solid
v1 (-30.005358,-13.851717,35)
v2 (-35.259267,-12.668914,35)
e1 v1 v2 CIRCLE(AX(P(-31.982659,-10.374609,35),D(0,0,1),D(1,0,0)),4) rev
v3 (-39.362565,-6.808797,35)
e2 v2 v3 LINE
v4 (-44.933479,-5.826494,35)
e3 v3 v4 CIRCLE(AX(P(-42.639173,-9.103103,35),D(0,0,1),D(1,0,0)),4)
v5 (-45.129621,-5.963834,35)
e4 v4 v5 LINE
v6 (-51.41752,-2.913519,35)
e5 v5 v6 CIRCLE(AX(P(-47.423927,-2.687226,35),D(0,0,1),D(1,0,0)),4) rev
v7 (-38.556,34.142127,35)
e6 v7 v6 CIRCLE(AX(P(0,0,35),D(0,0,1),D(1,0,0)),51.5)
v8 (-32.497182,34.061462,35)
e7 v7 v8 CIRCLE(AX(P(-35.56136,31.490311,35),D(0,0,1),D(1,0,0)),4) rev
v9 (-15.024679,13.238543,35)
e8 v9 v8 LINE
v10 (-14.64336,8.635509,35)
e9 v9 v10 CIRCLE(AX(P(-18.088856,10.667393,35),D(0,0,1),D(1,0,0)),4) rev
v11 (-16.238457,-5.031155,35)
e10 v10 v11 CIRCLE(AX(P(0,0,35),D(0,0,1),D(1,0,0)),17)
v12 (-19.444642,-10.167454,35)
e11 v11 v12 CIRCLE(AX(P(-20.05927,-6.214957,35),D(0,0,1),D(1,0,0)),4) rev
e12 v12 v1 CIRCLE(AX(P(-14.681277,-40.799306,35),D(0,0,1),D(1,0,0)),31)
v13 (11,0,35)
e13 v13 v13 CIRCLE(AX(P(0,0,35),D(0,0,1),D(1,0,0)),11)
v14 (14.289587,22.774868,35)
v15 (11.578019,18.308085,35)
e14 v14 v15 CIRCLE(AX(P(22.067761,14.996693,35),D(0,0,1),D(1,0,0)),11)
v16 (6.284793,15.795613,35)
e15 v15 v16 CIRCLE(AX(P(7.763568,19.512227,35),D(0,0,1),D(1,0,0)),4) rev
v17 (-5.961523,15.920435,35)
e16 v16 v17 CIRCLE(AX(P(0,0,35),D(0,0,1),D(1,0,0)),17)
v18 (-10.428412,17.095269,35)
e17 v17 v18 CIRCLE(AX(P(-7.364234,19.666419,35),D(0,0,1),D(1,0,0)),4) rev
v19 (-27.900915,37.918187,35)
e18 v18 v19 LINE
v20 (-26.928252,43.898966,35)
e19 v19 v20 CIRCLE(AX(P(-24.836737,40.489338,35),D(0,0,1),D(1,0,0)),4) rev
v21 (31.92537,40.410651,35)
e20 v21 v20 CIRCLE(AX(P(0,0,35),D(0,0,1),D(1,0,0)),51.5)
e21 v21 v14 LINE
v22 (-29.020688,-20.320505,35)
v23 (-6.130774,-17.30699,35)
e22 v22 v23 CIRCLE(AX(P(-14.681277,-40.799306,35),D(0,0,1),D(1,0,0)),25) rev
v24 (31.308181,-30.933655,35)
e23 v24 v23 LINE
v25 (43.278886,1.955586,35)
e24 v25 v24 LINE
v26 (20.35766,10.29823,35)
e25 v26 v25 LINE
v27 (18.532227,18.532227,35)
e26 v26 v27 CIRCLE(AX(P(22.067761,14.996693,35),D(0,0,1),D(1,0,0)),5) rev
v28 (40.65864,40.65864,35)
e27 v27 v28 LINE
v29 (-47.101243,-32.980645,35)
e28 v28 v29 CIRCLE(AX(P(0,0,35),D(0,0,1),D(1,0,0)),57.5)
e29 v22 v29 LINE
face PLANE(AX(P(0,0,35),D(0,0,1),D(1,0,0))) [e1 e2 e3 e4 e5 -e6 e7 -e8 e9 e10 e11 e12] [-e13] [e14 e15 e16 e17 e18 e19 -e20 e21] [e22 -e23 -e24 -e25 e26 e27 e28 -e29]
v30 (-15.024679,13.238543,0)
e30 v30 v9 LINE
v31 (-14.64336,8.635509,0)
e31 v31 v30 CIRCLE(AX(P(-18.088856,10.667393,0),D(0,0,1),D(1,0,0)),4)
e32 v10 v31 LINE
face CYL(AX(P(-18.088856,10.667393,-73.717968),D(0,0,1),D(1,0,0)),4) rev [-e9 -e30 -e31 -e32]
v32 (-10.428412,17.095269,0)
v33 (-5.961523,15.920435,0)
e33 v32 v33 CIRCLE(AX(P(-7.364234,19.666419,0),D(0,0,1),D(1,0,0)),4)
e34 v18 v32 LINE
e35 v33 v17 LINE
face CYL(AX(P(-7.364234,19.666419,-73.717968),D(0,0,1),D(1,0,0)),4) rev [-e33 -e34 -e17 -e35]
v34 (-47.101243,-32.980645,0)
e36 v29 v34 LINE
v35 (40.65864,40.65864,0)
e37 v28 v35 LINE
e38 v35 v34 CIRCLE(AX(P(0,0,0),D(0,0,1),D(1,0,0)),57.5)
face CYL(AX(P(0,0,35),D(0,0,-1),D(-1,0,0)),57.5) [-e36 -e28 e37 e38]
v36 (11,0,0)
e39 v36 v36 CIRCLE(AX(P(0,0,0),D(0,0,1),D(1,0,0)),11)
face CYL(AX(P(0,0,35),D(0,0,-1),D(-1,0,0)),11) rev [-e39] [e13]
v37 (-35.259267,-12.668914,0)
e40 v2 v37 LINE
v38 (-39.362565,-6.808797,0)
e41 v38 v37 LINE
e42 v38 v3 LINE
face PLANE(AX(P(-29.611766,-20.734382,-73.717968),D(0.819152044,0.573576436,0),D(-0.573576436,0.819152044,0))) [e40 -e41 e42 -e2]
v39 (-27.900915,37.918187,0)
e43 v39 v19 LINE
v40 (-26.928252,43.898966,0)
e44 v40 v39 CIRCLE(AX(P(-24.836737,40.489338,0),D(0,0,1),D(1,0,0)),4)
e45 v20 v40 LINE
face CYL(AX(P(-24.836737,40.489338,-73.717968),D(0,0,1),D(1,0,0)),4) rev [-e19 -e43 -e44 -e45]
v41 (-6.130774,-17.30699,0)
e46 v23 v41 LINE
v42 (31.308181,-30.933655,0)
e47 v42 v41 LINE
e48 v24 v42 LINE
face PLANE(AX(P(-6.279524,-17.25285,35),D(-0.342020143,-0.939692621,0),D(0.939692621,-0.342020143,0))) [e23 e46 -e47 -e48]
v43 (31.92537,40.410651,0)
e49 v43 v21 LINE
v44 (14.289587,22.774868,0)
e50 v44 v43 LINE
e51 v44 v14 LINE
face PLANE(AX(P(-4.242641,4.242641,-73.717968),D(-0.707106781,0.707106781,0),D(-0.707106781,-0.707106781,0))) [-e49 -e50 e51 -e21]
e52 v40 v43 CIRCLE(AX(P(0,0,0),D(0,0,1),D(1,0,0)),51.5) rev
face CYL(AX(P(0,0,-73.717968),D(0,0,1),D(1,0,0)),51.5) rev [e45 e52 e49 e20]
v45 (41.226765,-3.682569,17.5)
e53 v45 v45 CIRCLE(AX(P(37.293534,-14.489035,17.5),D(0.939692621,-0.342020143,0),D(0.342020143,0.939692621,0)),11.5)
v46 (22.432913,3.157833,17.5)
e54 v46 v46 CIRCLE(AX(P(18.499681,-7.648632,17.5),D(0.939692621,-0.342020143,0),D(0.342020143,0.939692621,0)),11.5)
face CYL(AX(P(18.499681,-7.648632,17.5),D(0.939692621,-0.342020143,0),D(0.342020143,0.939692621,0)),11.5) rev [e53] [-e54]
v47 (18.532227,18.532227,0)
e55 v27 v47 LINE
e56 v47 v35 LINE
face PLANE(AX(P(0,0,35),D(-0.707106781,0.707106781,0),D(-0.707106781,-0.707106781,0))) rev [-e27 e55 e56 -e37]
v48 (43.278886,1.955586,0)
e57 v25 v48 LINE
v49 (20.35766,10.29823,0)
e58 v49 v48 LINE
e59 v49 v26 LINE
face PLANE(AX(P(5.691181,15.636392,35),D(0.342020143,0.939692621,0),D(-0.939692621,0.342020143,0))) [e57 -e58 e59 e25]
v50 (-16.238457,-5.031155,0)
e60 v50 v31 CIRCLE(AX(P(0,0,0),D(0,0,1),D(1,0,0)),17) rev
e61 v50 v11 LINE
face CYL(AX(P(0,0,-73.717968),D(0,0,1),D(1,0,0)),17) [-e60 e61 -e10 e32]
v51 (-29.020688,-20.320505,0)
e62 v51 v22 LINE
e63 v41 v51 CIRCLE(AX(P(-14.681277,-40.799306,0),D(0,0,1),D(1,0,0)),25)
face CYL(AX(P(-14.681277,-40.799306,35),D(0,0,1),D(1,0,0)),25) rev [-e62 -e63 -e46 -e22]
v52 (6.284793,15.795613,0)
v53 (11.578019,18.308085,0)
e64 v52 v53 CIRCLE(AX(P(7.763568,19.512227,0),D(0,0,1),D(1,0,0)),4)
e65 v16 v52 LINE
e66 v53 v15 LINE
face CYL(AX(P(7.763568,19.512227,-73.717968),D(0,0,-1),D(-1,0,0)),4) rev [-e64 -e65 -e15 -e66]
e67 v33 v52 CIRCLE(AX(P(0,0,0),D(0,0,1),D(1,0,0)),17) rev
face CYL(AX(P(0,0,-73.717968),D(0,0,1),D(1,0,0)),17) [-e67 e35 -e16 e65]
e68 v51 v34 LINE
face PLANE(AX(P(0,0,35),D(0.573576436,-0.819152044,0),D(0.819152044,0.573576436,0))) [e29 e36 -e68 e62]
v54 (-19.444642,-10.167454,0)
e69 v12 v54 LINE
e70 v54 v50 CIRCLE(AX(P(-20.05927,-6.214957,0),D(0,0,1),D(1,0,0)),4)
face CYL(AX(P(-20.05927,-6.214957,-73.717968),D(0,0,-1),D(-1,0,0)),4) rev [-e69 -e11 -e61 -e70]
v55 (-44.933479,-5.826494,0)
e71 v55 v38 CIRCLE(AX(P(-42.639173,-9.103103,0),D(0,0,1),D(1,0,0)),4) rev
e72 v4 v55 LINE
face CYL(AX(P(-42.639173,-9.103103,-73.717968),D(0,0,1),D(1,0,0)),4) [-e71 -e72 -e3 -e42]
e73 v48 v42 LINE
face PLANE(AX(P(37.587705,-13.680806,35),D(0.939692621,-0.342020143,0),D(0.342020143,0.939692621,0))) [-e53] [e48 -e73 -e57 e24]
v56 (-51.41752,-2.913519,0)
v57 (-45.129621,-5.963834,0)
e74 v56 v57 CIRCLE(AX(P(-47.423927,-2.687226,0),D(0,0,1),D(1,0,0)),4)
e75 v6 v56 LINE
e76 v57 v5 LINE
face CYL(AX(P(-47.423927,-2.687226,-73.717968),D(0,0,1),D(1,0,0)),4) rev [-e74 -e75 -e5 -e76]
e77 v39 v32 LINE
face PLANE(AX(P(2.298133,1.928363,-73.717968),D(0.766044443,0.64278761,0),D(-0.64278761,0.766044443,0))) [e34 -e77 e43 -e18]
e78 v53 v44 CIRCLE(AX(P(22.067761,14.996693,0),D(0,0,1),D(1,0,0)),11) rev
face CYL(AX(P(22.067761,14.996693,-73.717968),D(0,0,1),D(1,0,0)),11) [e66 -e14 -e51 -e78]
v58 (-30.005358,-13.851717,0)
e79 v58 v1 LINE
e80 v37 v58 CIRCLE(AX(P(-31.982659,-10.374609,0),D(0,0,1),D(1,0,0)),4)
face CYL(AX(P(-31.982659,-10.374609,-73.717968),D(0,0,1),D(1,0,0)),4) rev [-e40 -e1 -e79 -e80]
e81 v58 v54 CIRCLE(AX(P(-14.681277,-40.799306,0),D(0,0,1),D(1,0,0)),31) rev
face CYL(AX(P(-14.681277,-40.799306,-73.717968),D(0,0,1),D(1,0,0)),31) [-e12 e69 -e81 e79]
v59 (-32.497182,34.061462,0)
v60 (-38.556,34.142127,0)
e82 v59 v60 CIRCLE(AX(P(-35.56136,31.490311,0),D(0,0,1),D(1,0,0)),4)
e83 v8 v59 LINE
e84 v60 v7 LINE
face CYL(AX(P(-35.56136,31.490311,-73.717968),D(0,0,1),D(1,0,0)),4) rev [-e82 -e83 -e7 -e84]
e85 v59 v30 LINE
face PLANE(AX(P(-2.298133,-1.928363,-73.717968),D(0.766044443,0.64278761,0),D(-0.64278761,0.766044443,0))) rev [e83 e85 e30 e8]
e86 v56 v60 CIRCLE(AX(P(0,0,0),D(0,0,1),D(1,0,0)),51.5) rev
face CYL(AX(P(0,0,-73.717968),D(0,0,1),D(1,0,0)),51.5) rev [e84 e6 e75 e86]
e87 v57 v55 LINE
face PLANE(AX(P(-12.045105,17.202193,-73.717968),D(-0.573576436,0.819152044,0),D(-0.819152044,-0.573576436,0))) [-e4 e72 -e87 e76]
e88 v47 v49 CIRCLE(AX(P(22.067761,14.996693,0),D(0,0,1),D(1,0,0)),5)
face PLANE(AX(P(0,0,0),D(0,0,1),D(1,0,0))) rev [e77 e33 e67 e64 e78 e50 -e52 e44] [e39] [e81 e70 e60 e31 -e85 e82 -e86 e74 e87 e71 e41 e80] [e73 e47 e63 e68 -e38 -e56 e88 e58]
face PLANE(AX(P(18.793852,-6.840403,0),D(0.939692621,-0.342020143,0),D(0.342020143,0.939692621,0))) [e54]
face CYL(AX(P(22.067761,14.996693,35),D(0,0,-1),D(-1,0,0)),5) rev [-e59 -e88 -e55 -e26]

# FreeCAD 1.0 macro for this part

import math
import FreeCAD as App
import Part
import Sketcher
Q = App.Units.Quantity


def edges_at(feature, points):
    """Names of the edges that pass closest to the given points."""
    edges = feature.Shape.Edges
    near = lambda p: min(range(len(edges)), key=lambda i: edges[i].distToShape(Part.Vertex(*p))[0])
    return sorted({f"Edge{near(p) + 1}" for p in points})

doc = App.newDocument("Part")
params = doc.addObject("Spreadsheet::Sheet", "Params")
for row, (alias, value) in enumerate([
    ("sketch1_diameter", "22 mm"),
    ("sketch1_radius", "57.5 mm"),
    ("sketch1_length", "40 mm"),
    ("sketch1_length2", "35 mm"),
    ("pad1_length", "35 mm"),
    ("fillet_radius", "25 mm"),
    ("fillet2_radius", "5 mm"),
    ("sketch2_radius", "31 mm"),
    ("sketch2_radius2", "17 mm"),
    ("sketch2_radius3", "11 mm"),
    ("sketch2_radius4", "51.5 mm"),
    ("sketch2_length", "15 mm"),
    ("pocket1_length", "35 mm"),
    ("fillet3_radius", "4 mm"),
    ("sketch3_radius", "11.5 mm"),
    ("pocket2_length", "20 mm"),
], start=1):
    params.set(f"A{row}", alias)
    params.set(f"B{row}", "=" + value)
    params.setAlias(f"B{row}", alias)

body = doc.addObject("PartDesign::Body", "Body")

# Sketch on XY plane
sketch1 = body.newObject("Sketcher::SketchObject", "Sketch")
sketch1.AttachmentSupport = (doc.getObject("XY_Plane"), [""])
sketch1.MapMode = "FlatFace"
sketch1.addGeometry(Part.LineSegment(App.Vector(-47, -33, 0), App.Vector(-15, -11, 0)), False)
sketch1.addGeometry(Part.ArcOfCircle(Part.Circle(App.Vector(0, 0, 0), App.Vector(0, 0, 1), 18), math.radians(-145), math.radians(-110)), False)
sketch1.addGeometry(Part.LineSegment(App.Vector(-6, -17, 0), App.Vector(31, -31, 0)), False)
sketch1.addGeometry(Part.LineSegment(App.Vector(31, -31, 0), App.Vector(43, 2, 0)), False)
sketch1.addGeometry(Part.LineSegment(App.Vector(43, 2, 0), App.Vector(13, 13, 0)), False)
sketch1.addGeometry(Part.LineSegment(App.Vector(13, 13, 0), App.Vector(41, 41, 0)), False)
sketch1.addGeometry(Part.ArcOfCircle(Part.Circle(App.Vector(0, 0, 0), App.Vector(0, 0, 1), 58), math.radians(45), math.radians(215)), False)
sketch1.addGeometry(Part.Circle(App.Vector(0, 0, 0), App.Vector(0, 0, 1), 11), False)
sketch1.addConstraint(Sketcher.Constraint("Coincident", 0, 2, 1, 1))
sketch1.addConstraint(Sketcher.Constraint("Tangent", 1, 2, 2, 1))
sketch1.addConstraint(Sketcher.Constraint("Coincident", 2, 2, 3, 1))
sketch1.addConstraint(Sketcher.Constraint("Coincident", 3, 2, 4, 1))
sketch1.addConstraint(Sketcher.Constraint("Coincident", 4, 2, 5, 1))
sketch1.addConstraint(Sketcher.Constraint("Coincident", 5, 2, 6, 1))
sketch1.addConstraint(Sketcher.Constraint("Coincident", 6, 2, 0, 1))
sketch1.addConstraint(Sketcher.Constraint("Coincident", 1, 3, -1, 1))
sketch1.addConstraint(Sketcher.Constraint("Coincident", 6, 3, -1, 1))
sketch1.addConstraint(Sketcher.Constraint("Coincident", 7, 3, -1, 1))
sketch1.addConstraint(Sketcher.Constraint("Perpendicular", 2, 3))
sketch1.addConstraint(Sketcher.Constraint("Perpendicular", 3, 4))
sketch1.addConstraint(Sketcher.Constraint("Equal", 0, 5))
sketch1.addConstraint(Sketcher.Constraint("Diameter", 7, Q("22 mm")))
sketch1.addConstraint(Sketcher.Constraint("Radius", 6, Q("57.5 mm")))
sketch1.addConstraint(Sketcher.Constraint("Angle", 0, Q("35 deg")))
sketch1.addConstraint(Sketcher.Constraint("Angle", 2, Q("-20 deg")))
sketch1.addConstraint(Sketcher.Constraint("Angle", 5, Q("45 deg")))
sketch1.addConstraint(Sketcher.Constraint("Distance", 2, Q("40 mm")))
sketch1.addConstraint(Sketcher.Constraint("Distance", 3, Q("35 mm")))
sketch1.addConstraint(Sketcher.Constraint("Radius", 1, Q("18.360099 mm")))
sketch1.addConstraint(Sketcher.Constraint("DistanceY", 0, 2, -1, 1, Q("10.53092 mm")))
sketch1.setExpression("Constraints[13]", "Params.sketch1_diameter")
sketch1.setExpression("Constraints[14]", "Params.sketch1_radius")
sketch1.setExpression("Constraints[18]", "Params.sketch1_length")
sketch1.setExpression("Constraints[19]", "Params.sketch1_length2")
pad1 = body.newObject("PartDesign::Pad", "Pad")
pad1.Profile = sketch1
pad1.setExpression("Length", "Params.pad1_length")
doc.recompute()

fillet = body.newObject("PartDesign::Fillet", "Fillet")
fillet.Base = (pad1, edges_at(pad1, [(-15.04, -10.531, 17.5)]))
fillet.setExpression("Radius", "Params.fillet_radius")
doc.recompute()

fillet2 = body.newObject("PartDesign::Fillet", "Fillet001")
fillet2.Base = (fillet, edges_at(fillet, [(12.983, 12.983, 17.5)]))
fillet2.setExpression("Radius", "Params.fillet2_radius")

# Sketch on XY plane
sketch2 = body.newObject("Sketcher::SketchObject", "Sketch001")
sketch2.AttachmentSupport = (doc.getObject("XY_Plane"), [""])
sketch2.MapMode = "FlatFace"
sketch2.AttachmentOffset = App.Placement(App.Vector(0, 0, 35), App.Rotation())
sketch2.addGeometry(Part.LineSegment(App.Vector(-41.7, -3.5, 0), App.Vector(-33.1, -15.8, 0)), False)
sketch2.addGeometry(Part.LineSegment(App.Vector(-33.1, -15.8, 0), App.Vector(-32.5, -15.4, 0)), False)
sketch2.addGeometry(Part.ArcOfCircle(Part.Circle(App.Vector(-14.7, -40.8, 0), App.Vector(0, 0, 1), 31), math.radians(89), math.radians(125)), False)
sketch2.addGeometry(Part.ArcOfCircle(Part.Circle(App.Vector(0, 0, 0), App.Vector(0, 0, 1), 17), math.radians(140), math.radians(215)), False)
sketch2.addGeometry(Part.LineSegment(App.Vector(-13.1, 10.9, 0), App.Vector(-35.3, 37.5, 0)), False)
sketch2.addGeometry(Part.ArcOfCircle(Part.Circle(App.Vector(0, 0, 0), App.Vector(0, 0, 1), 51.5), math.radians(133), math.radians(191)), False)
sketch2.addGeometry(Part.LineSegment(App.Vector(-50.6, -9.8, 0), App.Vector(-41.7, -3.5, 0)), False)
sketch2.addGeometry(Part.ArcOfCircle(Part.Circle(App.Vector(0, 0, 0), App.Vector(0, 0, 1), 51.5), math.radians(52), math.radians(127)), False)
sketch2.addGeometry(Part.LineSegment(App.Vector(-30.7, 41.3, 0), App.Vector(-8.5, 14.7, 0)), False)
sketch2.addGeometry(Part.ArcOfCircle(Part.Circle(App.Vector(0, 0, 0), App.Vector(0, 0, 1), 17), math.radians(48), math.radians(120)), False)
sketch2.addGeometry(Part.ArcOfCircle(Part.Circle(App.Vector(22.1, 15, 0), App.Vector(0, 0, 1), 11), math.radians(135), math.radians(192)), False)
sketch2.addGeometry(Part.LineSegment(App.Vector(14.3, 22.8, 0), App.Vector(31.9, 40.4, 0)), False)
sketch2.addConstraint(Sketcher.Constraint("Coincident", 0, 2, 1, 1))
sketch2.addConstraint(Sketcher.Constraint("Tangent", 1, 2, 2, 2))
sketch2.addConstraint(Sketcher.Constraint("Coincident", 2, 1, 3, 2))
sketch2.addConstraint(Sketcher.Constraint("Coincident", 3, 1, 4, 1))
sketch2.addConstraint(Sketcher.Constraint("Coincident", 4, 2, 5, 1))
sketch2.addConstraint(Sketcher.Constraint("Coincident", 5, 2, 6, 1))
sketch2.addConstraint(Sketcher.Constraint("Coincident", 6, 2, 0, 1))
sketch2.addConstraint(Sketcher.Constraint("Coincident", 7, 2, 8, 1))
sketch2.addConstraint(Sketcher.Constraint("Coincident", 8, 2, 9, 2))
sketch2.addConstraint(Sketcher.Constraint("Coincident", 9, 1, 10, 2))
sketch2.addConstraint(Sketcher.Constraint("Tangent", 10, 1, 11, 1))
sketch2.addConstraint(Sketcher.Constraint("Coincident", 11, 2, 7, 1))
sketch2.addConstraint(Sketcher.Constraint("Coincident", 3, 3, -1, 1))
sketch2.addConstraint(Sketcher.Constraint("Coincident", 5, 3, -1, 1))
sketch2.addConstraint(Sketcher.Constraint("Coincident", 7, 3, -1, 1))
sketch2.addConstraint(Sketcher.Constraint("Coincident", 9, 3, -1, 1))
sketch2.addConstraint(Sketcher.Constraint("Equal", 5, 7))
sketch2.addConstraint(Sketcher.Constraint("Equal", 3, 9))
sketch2.addConstraint(Sketcher.Constraint("Perpendicular", 0, 1))
sketch2.addConstraint(Sketcher.Constraint("Parallel", 1, 6))
sketch2.addConstraint(Sketcher.Constraint("Parallel", 4, 8))
sketch2.addConstraint(Sketcher.Constraint("Equal", 4, 8))
sketch2.addConstraint(Sketcher.Constraint("Radius", 2, Q("31 mm")))
sketch2.addConstraint(Sketcher.Constraint("Radius", 3, Q("17 mm")))
sketch2.addConstraint(Sketcher.Constraint("Radius", 10, Q("11 mm")))
sketch2.addConstraint(Sketcher.Constraint("Radius", 5, Q("51.5 mm")))
sketch2.addConstraint(Sketcher.Constraint("Angle", 0, Q("-55 deg")))
sketch2.addConstraint(Sketcher.Constraint("Angle", 4, Q("130 deg")))
sketch2.addConstraint(Sketcher.Constraint("Angle", 11, Q("45 deg")))
sketch2.addConstraint(Sketcher.Constraint("Distance", 0, Q("15 mm")))
sketch2.addConstraint(Sketcher.Constraint("DistanceY", 2, 3, 10, 3, Q("55.795999 mm")))
sketch2.addConstraint(Sketcher.Constraint("DistanceY", 6, 2, 3, 1, Q("14.422201 mm")))
sketch2.addConstraint(Sketcher.Constraint("Distance", 6, Q("10.874639 mm")))
sketch2.addConstraint(Sketcher.Constraint("DistanceX", -1, 1, 10, 3, Q("22.067761 mm")))
sketch2.addConstraint(Sketcher.Constraint("DistanceY", 0, 2, -1, 1, Q("15.819469 mm")))
sketch2.addConstraint(Sketcher.Constraint("DistanceX", 2, 1, -1, 1, Q("13.88426 mm")))
sketch2.setExpression("Constraints[22]", "Params.sketch2_radius")
sketch2.setExpression("Constraints[23]", "Params.sketch2_radius2")
sketch2.setExpression("Constraints[24]", "Params.sketch2_radius3")
sketch2.setExpression("Constraints[25]", "Params.sketch2_radius4")
sketch2.setExpression("Constraints[29]", "Params.sketch2_length")
pocket1 = body.newObject("PartDesign::Pocket", "Pocket")
pocket1.Profile = sketch2
pocket1.setExpression("Length", "Params.pocket1_length")
doc.recompute()

fillet3 = body.newObject("PartDesign::Fillet", "Fillet002")
fillet3.Base = (pocket1, edges_at(pocket1, [
    (-13.884, -9.81, 17.5),
    (-13.054, 10.89, 17.5),
    (-35.345, 37.456, 17.5),
    (-30.749, 41.313, 17.5),
    (-8.458, 14.747, 17.5),
    (11.312, 12.69, 17.5),
    (-50.565, -9.77, 17.5),
    (-33.053, -15.819, 17.5),
    (-41.657, -3.532, 17.5),
]))
fillet3.setExpression("Radius", "Params.fillet3_radius")

# Sketch on an angled plane
sketch3 = body.newObject("Sketcher::SketchObject", "Sketch002")
sketch3.Placement = App.Placement(App.Vector(37.587705, -13.680806, 0), App.Rotation(App.Vector(0, 0, -1), App.Vector(0.342020143, 0.939692621, 0), App.Vector(0.939692621, -0.342020143, 0), "ZXY"))
sketch3.addGeometry(Part.ArcOfCircle(Part.Circle(App.Vector(-18, -1, 0), App.Vector(0, 0, 1), 12), math.radians(0), math.radians(135)), False)
sketch3.addGeometry(Part.ArcOfCircle(Part.Circle(App.Vector(-18, -1, 0), App.Vector(0, 0, 1), 12), math.radians(135), math.radians(315)), False)
sketch3.addGeometry(Part.ArcOfCircle(Part.Circle(App.Vector(-18, -1, 0), App.Vector(0, 0, 1), 12), math.radians(-45), math.radians(0)), False)
sketch3.addConstraint(Sketcher.Constraint("Tangent", 0, 2, 1, 1))
sketch3.addConstraint(Sketcher.Constraint("Tangent", 1, 2, 2, 1))
sketch3.addConstraint(Sketcher.Constraint("Tangent", 2, 2, 0, 1))
sketch3.addConstraint(Sketcher.Constraint("Horizontal", 1, 3, 2, 2))
sketch3.addConstraint(Sketcher.Constraint("Radius", 0, Q("11.5 mm")))
sketch3.addConstraint(Sketcher.Constraint("DistanceX", 2, 2, -1, 1, Q("6 mm")))
sketch3.addConstraint(Sketcher.Constraint("DistanceY", 0, 3, -1, 1, Q("0.860099 mm")))
sketch3.addConstraint(Sketcher.Constraint("DistanceY", -1, 1, 0, 2, Q("7.271629 mm")))
sketch3.addConstraint(Sketcher.Constraint("DistanceX", 1, 2, -1, 1, Q("9.368272 mm")))
sketch3.setExpression("Constraints[4]", "Params.sketch3_radius")
pocket2 = body.newObject("PartDesign::Pocket", "Pocket001")
pocket2.Profile = sketch3
pocket2.setExpression("Length", "Params.pocket2_length")

doc.recompute()
